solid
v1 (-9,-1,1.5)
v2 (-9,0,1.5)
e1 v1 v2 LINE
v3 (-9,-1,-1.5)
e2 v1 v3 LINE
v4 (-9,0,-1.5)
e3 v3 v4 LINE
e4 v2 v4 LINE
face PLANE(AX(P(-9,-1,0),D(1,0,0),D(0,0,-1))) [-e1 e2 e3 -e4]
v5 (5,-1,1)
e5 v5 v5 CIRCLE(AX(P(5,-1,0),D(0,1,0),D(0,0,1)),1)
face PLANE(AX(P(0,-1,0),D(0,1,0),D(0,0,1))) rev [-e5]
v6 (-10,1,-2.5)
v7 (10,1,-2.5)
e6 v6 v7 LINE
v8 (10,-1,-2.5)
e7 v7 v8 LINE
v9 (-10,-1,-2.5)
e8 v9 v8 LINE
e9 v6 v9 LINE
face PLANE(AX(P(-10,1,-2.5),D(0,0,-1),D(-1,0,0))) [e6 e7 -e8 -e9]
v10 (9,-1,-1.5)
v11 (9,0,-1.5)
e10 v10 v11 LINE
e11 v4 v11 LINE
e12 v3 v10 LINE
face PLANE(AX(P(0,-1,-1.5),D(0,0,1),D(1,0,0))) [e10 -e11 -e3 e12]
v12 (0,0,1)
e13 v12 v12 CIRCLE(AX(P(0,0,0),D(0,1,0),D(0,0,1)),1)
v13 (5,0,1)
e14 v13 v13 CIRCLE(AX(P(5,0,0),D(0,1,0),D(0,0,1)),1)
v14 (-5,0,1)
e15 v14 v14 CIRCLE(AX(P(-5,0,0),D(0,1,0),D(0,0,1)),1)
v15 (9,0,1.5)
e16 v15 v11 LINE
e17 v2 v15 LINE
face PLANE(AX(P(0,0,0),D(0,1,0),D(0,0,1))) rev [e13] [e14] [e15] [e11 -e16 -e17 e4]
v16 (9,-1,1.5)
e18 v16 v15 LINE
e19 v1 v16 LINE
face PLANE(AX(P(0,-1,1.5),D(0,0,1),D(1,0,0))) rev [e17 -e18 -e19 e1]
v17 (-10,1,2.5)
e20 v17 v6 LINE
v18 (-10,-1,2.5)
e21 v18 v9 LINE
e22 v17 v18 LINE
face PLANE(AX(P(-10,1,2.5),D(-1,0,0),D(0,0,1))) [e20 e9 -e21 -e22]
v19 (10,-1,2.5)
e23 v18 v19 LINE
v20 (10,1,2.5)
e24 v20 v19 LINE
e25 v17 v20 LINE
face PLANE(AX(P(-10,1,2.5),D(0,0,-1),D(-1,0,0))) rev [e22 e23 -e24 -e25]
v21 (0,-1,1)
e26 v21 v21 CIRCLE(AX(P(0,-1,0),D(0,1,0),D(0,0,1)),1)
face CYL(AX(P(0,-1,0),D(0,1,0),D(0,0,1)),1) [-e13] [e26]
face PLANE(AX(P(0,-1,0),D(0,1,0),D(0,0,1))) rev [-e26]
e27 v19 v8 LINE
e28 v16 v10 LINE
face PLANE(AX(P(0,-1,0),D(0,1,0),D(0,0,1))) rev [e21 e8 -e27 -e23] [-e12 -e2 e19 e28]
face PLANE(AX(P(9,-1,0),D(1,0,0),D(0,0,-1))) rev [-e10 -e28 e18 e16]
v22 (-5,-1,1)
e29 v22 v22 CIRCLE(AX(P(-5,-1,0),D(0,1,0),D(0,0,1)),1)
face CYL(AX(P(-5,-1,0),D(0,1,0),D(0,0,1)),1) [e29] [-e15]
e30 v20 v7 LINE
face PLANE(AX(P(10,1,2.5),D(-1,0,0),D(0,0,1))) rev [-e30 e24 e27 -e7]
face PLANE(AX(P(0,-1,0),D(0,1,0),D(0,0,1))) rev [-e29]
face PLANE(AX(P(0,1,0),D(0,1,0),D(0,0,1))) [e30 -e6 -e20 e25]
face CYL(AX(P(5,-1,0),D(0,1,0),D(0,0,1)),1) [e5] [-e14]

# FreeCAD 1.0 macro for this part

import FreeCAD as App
import Part
import Sketcher
from FreeCAD import Vector
Q = App.Units.Quantity


def add_polygon(sketch, points):
    """Adds a closed chain of lines whose ends are joined by coincident constraints."""
    first, n = sketch.GeometryCount, len(points)
    for a, b in zip(points, points[1:] + points[:1]):
        sketch.addGeometry(Part.LineSegment(App.Vector(*a, 0), App.Vector(*b, 0)), False)
    for i in range(n):
        sketch.addConstraint(Sketcher.Constraint("Coincident", first + i, 2, first + (i + 1) % n, 1))

doc = App.newDocument("Part")
params = doc.addObject("Spreadsheet::Sheet", "Params")
for row, (alias, value) in enumerate([
    ("sketch1_width", "20 mm"),
    ("sketch1_height", "5 mm"),
    ("pad1_length", "1 mm"),
    ("sketch2_diameter", "2 mm"),
    ("sketch2_width", "20 mm"),
    ("sketch2_width2", "18 mm"),
    ("sketch2_height", "5 mm"),
    ("sketch2_height2", "3 mm"),
    ("pad2_length", "1 mm"),
], start=1):
    params.set(f"A{row}", alias)
    params.set(f"B{row}", "=" + value)
    params.setAlias(f"B{row}", alias)

body = doc.addObject("PartDesign::Body", "Body")

sketch1 = body.newObject("Sketcher::SketchObject", "Sketch")
sketch1.AttachmentSupport = (doc.getObject("XZ_Plane"), [""])
sketch1.MapMode = "FlatFace"
add_polygon(sketch1, [(-10, -2), (-10, 2), (10, 2), (10, -2)])
sketch1.addConstraint(Sketcher.Constraint("Vertical", 0))
sketch1.addConstraint(Sketcher.Constraint("Horizontal", 1))
sketch1.addConstraint(Sketcher.Constraint("Vertical", 2))
sketch1.addConstraint(Sketcher.Constraint("Horizontal", 3))
sketch1.addConstraint(Sketcher.Constraint("Symmetric", 0, 2, 2, 2, -1, 1))
sketch1.addConstraint(Sketcher.Constraint("DistanceX", 1, 1, 1, 2, Q("20 mm")))
sketch1.addConstraint(Sketcher.Constraint("DistanceY", 0, 1, 0, 2, Q("5 mm")))
sketch1.setExpression("Constraints[9]", "Params.sketch1_width")
sketch1.setExpression("Constraints[10]", "Params.sketch1_height")
pad1 = body.newObject("PartDesign::Pad", "Pad")
pad1.Profile = sketch1
pad1.setExpression("Length", "Params.pad1_length")
pad1.Reversed = True

sketch2 = body.newObject("Sketcher::SketchObject", "Sketch001")
sketch2.AttachmentSupport = (doc.getObject("XZ_Plane"), [""])
sketch2.MapMode = "FlatFace"
add_polygon(sketch2, [(-10, -2.5), (-10, 2.5), (10, 2.5), (10, -2.5)])
add_polygon(sketch2, [(9, 1.5), (-9, 1.5), (-9, -1.5), (9, -1.5)])
sketch2.addGeometry(Part.Circle(Vector(-5, 0, 0), Vector(0, 0, 1), 1), False)
sketch2.addGeometry(Part.Circle(Vector(0, 0, 0), Vector(0, 0, 1), 1), False)
sketch2.addGeometry(Part.Circle(Vector(5, 0, 0), Vector(0, 0, 1), 1), False)
sketch2.addConstraint(Sketcher.Constraint("Vertical", 0))
sketch2.addConstraint(Sketcher.Constraint("Horizontal", 1))
sketch2.addConstraint(Sketcher.Constraint("Vertical", 2))
sketch2.addConstraint(Sketcher.Constraint("Horizontal", 3))
sketch2.addConstraint(Sketcher.Constraint("Horizontal", 4))
sketch2.addConstraint(Sketcher.Constraint("Vertical", 5))
sketch2.addConstraint(Sketcher.Constraint("Horizontal", 6))
sketch2.addConstraint(Sketcher.Constraint("Vertical", 7))
sketch2.addConstraint(Sketcher.Constraint("Coincident", 9, 3, -1, 1))
sketch2.addConstraint(Sketcher.Constraint("Equal", 8, 9))
sketch2.addConstraint(Sketcher.Constraint("Equal", 9, 10))
sketch2.addConstraint(Sketcher.Constraint("Symmetric", 8, 3, 10, 3, -1, 1))
sketch2.addConstraint(Sketcher.Constraint("Symmetric", 0, 2, 2, 2, -1, 1))
sketch2.addConstraint(Sketcher.Constraint("Symmetric", 4, 2, 6, 2, -1, 1))
sketch2.addConstraint(Sketcher.Constraint("PointOnObject", 8, 3, -1))
sketch2.addConstraint(Sketcher.Constraint("Diameter", 8, Q("2 mm")))
sketch2.addConstraint(Sketcher.Constraint("DistanceX", 1, 1, 1, 2, Q("20 mm")))
sketch2.addConstraint(Sketcher.Constraint("DistanceX", 4, 2, 4, 1, Q("18 mm")))
sketch2.addConstraint(Sketcher.Constraint("DistanceY", 0, 1, 0, 2, Q("5 mm")))
sketch2.addConstraint(Sketcher.Constraint("DistanceY", 5, 2, 5, 1, Q("3 mm")))
sketch2.addConstraint(Sketcher.Constraint("DistanceX", 8, 3, -1, 1, Q("5 mm")))
sketch2.setExpression("Constraints[23]", "Params.sketch2_diameter")
sketch2.setExpression("Constraints[24]", "Params.sketch2_width")
sketch2.setExpression("Constraints[25]", "Params.sketch2_width2")
sketch2.setExpression("Constraints[26]", "Params.sketch2_height")
sketch2.setExpression("Constraints[27]", "Params.sketch2_height2")
pad2 = body.newObject("PartDesign::Pad", "Pad001")
pad2.Profile = sketch2
pad2.setExpression("Length", "Params.pad2_length")

doc.recompute()
